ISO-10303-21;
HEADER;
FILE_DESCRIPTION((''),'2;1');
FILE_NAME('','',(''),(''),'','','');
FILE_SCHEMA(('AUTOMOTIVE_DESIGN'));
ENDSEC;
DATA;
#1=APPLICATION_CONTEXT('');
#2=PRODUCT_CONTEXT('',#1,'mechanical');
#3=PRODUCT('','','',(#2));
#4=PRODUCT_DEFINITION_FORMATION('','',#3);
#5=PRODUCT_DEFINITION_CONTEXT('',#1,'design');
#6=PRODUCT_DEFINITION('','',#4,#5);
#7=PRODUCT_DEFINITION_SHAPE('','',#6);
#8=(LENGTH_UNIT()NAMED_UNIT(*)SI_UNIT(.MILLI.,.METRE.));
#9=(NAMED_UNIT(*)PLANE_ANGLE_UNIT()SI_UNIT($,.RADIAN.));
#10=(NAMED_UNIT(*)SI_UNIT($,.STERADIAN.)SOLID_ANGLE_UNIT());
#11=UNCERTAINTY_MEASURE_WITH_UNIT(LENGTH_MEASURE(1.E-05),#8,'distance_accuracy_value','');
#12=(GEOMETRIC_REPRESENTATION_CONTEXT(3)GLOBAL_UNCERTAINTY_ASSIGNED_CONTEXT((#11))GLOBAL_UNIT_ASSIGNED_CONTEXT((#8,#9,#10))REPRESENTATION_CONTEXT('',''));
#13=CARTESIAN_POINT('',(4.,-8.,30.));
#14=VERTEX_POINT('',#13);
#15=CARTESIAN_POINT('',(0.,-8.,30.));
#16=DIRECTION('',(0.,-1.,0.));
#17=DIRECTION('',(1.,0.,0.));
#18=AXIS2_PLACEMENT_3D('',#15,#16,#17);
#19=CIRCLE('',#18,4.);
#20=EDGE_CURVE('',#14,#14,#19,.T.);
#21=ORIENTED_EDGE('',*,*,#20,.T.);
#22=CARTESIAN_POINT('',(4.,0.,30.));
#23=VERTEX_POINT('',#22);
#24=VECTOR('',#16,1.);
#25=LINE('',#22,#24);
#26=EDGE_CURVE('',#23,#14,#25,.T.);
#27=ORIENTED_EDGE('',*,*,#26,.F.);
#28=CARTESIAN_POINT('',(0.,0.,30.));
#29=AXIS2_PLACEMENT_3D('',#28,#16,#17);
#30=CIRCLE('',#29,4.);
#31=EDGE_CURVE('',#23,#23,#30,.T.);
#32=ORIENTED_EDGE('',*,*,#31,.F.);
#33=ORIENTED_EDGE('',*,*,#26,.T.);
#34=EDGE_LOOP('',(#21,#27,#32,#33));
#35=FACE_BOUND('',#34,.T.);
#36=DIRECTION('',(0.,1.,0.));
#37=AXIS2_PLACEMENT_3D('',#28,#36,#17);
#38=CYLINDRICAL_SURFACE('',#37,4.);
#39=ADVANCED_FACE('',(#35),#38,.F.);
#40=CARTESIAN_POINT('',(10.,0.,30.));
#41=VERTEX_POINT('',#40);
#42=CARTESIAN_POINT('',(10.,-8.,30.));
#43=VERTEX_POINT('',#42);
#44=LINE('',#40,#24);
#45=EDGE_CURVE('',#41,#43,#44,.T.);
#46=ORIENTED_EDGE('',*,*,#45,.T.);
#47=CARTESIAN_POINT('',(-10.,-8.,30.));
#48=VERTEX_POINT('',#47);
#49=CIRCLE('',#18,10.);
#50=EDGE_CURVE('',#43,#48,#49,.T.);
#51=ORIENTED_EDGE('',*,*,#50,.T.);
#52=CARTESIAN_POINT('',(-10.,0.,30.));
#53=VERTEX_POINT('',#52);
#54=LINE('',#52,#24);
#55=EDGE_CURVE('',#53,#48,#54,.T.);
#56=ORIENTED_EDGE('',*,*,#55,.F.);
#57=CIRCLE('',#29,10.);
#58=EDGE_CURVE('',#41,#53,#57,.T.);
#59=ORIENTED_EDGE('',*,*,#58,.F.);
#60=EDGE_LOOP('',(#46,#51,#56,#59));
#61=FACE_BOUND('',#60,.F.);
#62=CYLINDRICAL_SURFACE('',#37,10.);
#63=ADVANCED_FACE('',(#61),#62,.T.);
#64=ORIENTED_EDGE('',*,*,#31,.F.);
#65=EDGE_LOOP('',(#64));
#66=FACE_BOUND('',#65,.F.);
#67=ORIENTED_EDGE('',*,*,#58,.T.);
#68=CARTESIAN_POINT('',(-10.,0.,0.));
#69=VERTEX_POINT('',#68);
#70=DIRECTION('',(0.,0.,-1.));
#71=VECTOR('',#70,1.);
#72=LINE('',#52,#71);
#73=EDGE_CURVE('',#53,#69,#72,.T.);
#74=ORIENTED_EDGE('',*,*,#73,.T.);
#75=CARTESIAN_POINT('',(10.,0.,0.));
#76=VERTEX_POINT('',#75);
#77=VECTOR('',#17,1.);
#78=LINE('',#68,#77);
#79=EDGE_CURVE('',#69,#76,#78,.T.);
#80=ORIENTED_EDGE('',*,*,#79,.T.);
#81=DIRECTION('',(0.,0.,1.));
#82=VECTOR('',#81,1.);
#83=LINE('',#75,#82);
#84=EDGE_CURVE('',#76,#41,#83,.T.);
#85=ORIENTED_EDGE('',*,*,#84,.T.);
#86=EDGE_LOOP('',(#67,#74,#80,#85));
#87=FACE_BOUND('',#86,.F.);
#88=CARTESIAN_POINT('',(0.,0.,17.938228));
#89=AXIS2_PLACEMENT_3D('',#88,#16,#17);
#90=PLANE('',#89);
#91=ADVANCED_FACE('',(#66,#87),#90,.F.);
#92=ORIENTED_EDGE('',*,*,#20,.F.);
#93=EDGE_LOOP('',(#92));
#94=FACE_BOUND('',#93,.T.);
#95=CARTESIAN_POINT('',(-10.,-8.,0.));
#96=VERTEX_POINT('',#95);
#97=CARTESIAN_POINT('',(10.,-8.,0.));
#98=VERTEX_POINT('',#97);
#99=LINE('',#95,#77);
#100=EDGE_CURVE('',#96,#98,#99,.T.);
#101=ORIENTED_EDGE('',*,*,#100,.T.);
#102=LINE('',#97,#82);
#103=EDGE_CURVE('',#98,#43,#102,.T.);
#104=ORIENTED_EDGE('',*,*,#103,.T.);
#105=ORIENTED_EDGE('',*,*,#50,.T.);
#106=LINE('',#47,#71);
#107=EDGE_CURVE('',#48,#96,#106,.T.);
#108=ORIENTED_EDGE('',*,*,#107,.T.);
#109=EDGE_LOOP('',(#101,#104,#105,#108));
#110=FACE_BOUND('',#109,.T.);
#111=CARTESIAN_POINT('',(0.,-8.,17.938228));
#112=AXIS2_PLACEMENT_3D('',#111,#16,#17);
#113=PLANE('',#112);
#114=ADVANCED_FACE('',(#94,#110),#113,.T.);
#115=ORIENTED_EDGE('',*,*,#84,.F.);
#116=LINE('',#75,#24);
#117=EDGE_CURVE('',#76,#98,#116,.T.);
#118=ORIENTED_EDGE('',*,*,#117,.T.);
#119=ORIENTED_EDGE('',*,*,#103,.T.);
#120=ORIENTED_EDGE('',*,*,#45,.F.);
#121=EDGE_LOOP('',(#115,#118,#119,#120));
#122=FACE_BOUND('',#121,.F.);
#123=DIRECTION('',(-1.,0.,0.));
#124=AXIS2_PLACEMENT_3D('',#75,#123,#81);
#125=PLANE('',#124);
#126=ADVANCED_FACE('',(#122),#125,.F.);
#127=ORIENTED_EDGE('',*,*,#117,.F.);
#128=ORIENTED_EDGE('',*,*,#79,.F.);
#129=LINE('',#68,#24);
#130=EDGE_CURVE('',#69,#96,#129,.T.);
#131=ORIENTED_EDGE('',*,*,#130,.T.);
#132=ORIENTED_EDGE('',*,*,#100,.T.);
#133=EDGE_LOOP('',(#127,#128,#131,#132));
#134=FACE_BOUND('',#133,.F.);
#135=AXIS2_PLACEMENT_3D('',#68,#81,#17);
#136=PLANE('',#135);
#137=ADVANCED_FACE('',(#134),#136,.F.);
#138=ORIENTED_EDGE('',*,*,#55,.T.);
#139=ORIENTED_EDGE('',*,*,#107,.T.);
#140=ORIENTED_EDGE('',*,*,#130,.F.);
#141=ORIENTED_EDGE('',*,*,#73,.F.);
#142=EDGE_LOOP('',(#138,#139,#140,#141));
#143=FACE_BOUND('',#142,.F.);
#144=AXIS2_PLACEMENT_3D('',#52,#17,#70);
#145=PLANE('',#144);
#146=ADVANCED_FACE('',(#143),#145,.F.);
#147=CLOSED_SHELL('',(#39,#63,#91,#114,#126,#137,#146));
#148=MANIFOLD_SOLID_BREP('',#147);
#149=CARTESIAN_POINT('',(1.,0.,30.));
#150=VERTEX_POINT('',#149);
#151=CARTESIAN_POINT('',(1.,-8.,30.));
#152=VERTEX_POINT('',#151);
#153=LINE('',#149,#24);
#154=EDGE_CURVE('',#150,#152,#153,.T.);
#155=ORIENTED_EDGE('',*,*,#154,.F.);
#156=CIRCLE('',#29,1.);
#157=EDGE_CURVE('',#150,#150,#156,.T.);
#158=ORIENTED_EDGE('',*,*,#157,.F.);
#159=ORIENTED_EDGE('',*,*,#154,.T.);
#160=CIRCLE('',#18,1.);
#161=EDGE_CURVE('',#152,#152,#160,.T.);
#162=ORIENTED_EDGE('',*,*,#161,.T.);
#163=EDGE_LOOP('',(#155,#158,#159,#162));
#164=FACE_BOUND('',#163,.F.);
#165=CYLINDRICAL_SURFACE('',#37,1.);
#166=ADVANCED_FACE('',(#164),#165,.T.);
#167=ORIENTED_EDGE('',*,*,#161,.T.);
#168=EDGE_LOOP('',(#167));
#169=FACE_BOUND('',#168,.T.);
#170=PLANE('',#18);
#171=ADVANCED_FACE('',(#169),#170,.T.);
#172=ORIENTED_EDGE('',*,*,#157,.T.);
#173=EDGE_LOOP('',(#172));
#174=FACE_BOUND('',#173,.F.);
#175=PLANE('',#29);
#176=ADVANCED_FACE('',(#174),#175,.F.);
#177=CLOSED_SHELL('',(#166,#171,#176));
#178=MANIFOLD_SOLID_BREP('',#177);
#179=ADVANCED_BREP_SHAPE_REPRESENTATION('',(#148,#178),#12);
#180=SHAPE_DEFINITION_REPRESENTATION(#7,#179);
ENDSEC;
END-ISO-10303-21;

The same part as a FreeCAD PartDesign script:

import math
import FreeCAD as App
import Part
import Sketcher
from FreeCAD import Vector

doc = App.newDocument("Part")
body = doc.addObject("PartDesign::Body", "Body")

# Sketch on XZ plane
sketch1 = body.newObject("Sketcher::SketchObject", "Sketch")
sketch1.AttachmentSupport = (doc.getObject("XZ_Plane"), [""])
sketch1.MapMode = "FlatFace"
sketch1.addGeometry(Part.LineSegment(Vector(10, 0, 0), Vector(10, 30, 0)), False)
sketch1.addGeometry(Part.ArcOfCircle(Part.Circle(Vector(0, 30, 0), Vector(0, 0, 1), 10), math.radians(0), math.radians(180)), False)
sketch1.addGeometry(Part.LineSegment(Vector(-10, 30, 0), Vector(-10, 0, 0)), False)
sketch1.addGeometry(Part.LineSegment(Vector(-10, 0, 0), Vector(10, 0, 0)), False)
sketch1.addGeometry(Part.Circle(Vector(0, 30, 0), Vector(0, 0, 1), 4), False)
sketch1.addConstraint(Sketcher.Constraint("Tangent", 0, 2, 1, 1))
sketch1.addConstraint(Sketcher.Constraint("Tangent", 1, 2, 2, 1))
sketch1.addConstraint(Sketcher.Constraint("Coincident", 2, 2, 3, 1))
sketch1.addConstraint(Sketcher.Constraint("Coincident", 3, 2, 0, 1))
sketch1.addConstraint(Sketcher.Constraint("Vertical", 0))
sketch1.addConstraint(Sketcher.Constraint("Vertical", 2))
sketch1.addConstraint(Sketcher.Constraint("Horizontal", 3))
sketch1.addConstraint(Sketcher.Constraint("Coincident", 4, 3, 1, 3))
sketch1.addConstraint(Sketcher.Constraint("Symmetric", 2, 2, 3, 2, -1, 1))
sketch1.addConstraint(Sketcher.Constraint("Diameter", 4, 8.0))
sketch1.addConstraint(Sketcher.Constraint("Radius", 1, 10.0))
sketch1.addConstraint(Sketcher.Constraint("DistanceY", 0, 1, 0, 2, 30.0))
pad1 = body.newObject("PartDesign::Pad", "Pad")
pad1.Profile = sketch1
pad1.Length = 8
body2 = doc.addObject("PartDesign::Body", "Body001")

# Sketch on XZ plane
sketch2 = body2.newObject("Sketcher::SketchObject", "Sketch001")
sketch2.AttachmentSupport = (doc.getObject("XZ_Plane001"), [""])
sketch2.MapMode = "FlatFace"
sketch2.addGeometry(Part.Circle(Vector(0, 30, 0), Vector(0, 0, 1), 1), False)
sketch2.addConstraint(Sketcher.Constraint("PointOnObject", 0, 3, -2))
sketch2.addConstraint(Sketcher.Constraint("Diameter", 0, 2.0))
sketch2.addConstraint(Sketcher.Constraint("DistanceY", -1, 1, 0, 3, 30.0))
pad2 = body2.newObject("PartDesign::Pad", "Pad001")
pad2.Profile = sketch2
pad2.Length = 8

doc.recompute()
